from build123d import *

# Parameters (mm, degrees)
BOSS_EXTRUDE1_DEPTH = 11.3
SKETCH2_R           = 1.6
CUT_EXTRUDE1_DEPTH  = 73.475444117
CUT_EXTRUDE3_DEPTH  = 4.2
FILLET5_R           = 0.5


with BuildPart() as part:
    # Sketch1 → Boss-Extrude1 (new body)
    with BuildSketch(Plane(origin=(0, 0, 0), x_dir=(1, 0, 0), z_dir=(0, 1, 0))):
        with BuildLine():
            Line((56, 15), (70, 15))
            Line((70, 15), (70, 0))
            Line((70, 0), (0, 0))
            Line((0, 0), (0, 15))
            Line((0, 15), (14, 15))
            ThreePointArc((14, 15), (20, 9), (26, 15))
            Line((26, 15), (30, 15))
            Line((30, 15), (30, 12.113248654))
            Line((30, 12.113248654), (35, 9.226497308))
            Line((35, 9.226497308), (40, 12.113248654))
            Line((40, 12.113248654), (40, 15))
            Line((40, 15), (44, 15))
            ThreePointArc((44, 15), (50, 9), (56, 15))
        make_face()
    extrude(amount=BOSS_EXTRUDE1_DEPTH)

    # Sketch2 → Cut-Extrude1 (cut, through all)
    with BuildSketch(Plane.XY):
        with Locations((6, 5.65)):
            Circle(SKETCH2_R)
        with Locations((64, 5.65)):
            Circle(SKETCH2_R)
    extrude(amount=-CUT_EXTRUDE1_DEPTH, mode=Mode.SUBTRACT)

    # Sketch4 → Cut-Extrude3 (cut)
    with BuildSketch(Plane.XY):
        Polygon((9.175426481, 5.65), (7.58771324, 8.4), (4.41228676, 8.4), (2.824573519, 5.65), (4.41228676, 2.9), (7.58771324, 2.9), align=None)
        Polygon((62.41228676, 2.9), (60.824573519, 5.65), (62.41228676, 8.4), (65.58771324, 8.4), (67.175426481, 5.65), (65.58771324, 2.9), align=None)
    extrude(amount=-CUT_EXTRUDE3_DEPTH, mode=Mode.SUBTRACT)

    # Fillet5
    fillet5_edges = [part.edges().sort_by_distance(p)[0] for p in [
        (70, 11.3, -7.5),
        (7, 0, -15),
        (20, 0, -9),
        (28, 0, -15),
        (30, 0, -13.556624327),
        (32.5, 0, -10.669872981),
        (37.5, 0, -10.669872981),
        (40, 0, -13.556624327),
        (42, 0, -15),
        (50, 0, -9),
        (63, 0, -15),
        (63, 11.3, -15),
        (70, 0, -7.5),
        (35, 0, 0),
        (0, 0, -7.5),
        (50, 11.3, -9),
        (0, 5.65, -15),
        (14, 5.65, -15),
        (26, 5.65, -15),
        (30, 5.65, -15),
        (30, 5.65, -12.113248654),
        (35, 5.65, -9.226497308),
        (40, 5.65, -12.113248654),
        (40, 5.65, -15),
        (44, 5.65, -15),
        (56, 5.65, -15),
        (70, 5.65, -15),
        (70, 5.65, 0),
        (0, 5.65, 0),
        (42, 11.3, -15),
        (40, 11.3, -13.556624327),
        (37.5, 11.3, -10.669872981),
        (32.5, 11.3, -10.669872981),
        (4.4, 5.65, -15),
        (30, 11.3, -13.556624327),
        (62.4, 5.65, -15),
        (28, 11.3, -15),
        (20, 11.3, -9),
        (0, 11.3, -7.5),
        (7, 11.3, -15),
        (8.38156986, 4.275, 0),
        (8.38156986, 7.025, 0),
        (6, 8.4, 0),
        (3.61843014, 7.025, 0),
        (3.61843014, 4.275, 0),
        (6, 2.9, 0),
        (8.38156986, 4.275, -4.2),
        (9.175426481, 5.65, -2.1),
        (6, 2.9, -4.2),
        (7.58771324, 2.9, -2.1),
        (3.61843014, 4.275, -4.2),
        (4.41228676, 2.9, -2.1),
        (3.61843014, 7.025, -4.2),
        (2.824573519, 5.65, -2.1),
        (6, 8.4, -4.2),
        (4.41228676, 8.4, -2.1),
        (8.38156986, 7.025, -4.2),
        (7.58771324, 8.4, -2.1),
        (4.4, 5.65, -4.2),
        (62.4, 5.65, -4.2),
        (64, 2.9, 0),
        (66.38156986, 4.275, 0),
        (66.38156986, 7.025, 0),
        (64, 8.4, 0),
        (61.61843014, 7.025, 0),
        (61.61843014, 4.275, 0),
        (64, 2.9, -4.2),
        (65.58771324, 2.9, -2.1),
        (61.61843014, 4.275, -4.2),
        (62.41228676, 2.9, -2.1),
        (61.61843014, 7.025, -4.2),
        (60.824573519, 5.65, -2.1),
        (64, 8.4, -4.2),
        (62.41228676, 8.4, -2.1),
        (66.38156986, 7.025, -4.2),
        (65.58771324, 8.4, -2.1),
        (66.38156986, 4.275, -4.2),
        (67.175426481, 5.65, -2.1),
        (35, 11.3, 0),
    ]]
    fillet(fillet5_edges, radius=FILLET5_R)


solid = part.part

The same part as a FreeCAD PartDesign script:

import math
import FreeCAD as App
import Part
import Sketcher
from FreeCAD import Vector
Q = App.Units.Quantity

doc = App.newDocument("Part")
body = doc.addObject("PartDesign::Body", "Body")

sketch1 = body.newObject("Sketcher::SketchObject", "Sketch")
sketch1.AttachmentSupport = (doc.getObject("XZ_Plane"), [""])
sketch1.MapMode = "FlatFace"
sketch1.addGeometry(Part.LineSegment(Vector(70, -15, 0), Vector(56, -15, 0)), False)
sketch1.addGeometry(Part.ArcOfCircle(Part.Circle(Vector(50, -15, 0), Vector(0, 0, 1), 6), math.radians(0), math.radians(180)), False)
sketch1.addGeometry(Part.LineSegment(Vector(44, -15, 0), Vector(40, -15, 0)), False)
sketch1.addGeometry(Part.LineSegment(Vector(40, -15, 0), Vector(40, -12.1, 0)), False)
sketch1.addGeometry(Part.LineSegment(Vector(40, -12.1, 0), Vector(35, -9.2, 0)), False)
sketch1.addGeometry(Part.LineSegment(Vector(35, -9.2, 0), Vector(30, -12.1, 0)), False)
sketch1.addGeometry(Part.LineSegment(Vector(30, -12.1, 0), Vector(30, -15, 0)), False)
sketch1.addGeometry(Part.LineSegment(Vector(30, -15, 0), Vector(26, -15, 0)), False)
sketch1.addGeometry(Part.ArcOfCircle(Part.Circle(Vector(20, -15, 0), Vector(0, 0, 1), 6), math.radians(0), math.radians(180)), False)
sketch1.addGeometry(Part.LineSegment(Vector(14, -15, 0), Vector(0, -15, 0)), False)
sketch1.addGeometry(Part.LineSegment(Vector(0, -15, 0), Vector(0, 0, 0)), False)
sketch1.addGeometry(Part.LineSegment(Vector(0, 0, 0), Vector(70, 0, 0)), False)
sketch1.addGeometry(Part.LineSegment(Vector(70, 0, 0), Vector(70, -15, 0)), False)
sketch1.addConstraint(Sketcher.Constraint("Coincident", 0, 2, 1, 1))
sketch1.addConstraint(Sketcher.Constraint("Coincident", 1, 2, 2, 1))
sketch1.addConstraint(Sketcher.Constraint("Coincident", 2, 2, 3, 1))
sketch1.addConstraint(Sketcher.Constraint("Coincident", 3, 2, 4, 1))
sketch1.addConstraint(Sketcher.Constraint("Coincident", 4, 2, 5, 1))
sketch1.addConstraint(Sketcher.Constraint("Coincident", 5, 2, 6, 1))
sketch1.addConstraint(Sketcher.Constraint("Coincident", 6, 2, 7, 1))
sketch1.addConstraint(Sketcher.Constraint("Coincident", 7, 2, 8, 1))
sketch1.addConstraint(Sketcher.Constraint("Coincident", 8, 2, 9, 1))
sketch1.addConstraint(Sketcher.Constraint("Coincident", 9, 2, 10, 1))
sketch1.addConstraint(Sketcher.Constraint("Coincident", 10, 2, 11, 1))
sketch1.addConstraint(Sketcher.Constraint("Coincident", 11, 2, 12, 1))
sketch1.addConstraint(Sketcher.Constraint("Coincident", 12, 2, 0, 1))
sketch1.addConstraint(Sketcher.Constraint("Horizontal", 0))
sketch1.addConstraint(Sketcher.Constraint("Horizontal", 2))
sketch1.addConstraint(Sketcher.Constraint("Vertical", 3))
sketch1.addConstraint(Sketcher.Constraint("Vertical", 6))
sketch1.addConstraint(Sketcher.Constraint("Horizontal", 7))
sketch1.addConstraint(Sketcher.Constraint("Horizontal", 9))
sketch1.addConstraint(Sketcher.Constraint("Vertical", 10))
sketch1.addConstraint(Sketcher.Constraint("Horizontal", 11))
sketch1.addConstraint(Sketcher.Constraint("Vertical", 12))
sketch1.addConstraint(Sketcher.Constraint("Coincident", 10, 2, -1, 1))
sketch1.addConstraint(Sketcher.Constraint("Equal", 1, 8))
sketch1.addConstraint(Sketcher.Constraint("Horizontal", 1, 3, 8, 3))
sketch1.addConstraint(Sketcher.Constraint("Horizontal", 8, 3, 0, 2))
sketch1.addConstraint(Sketcher.Constraint("Horizontal", 0, 2, 1, 2))
sketch1.addConstraint(Sketcher.Constraint("Horizontal", 3, 2, 5, 2))
sketch1.addConstraint(Sketcher.Constraint("Horizontal", 2, 2, 6, 2))
sketch1.addConstraint(Sketcher.Constraint("Horizontal", 7, 2, 8, 2))
sketch1.addConstraint(Sketcher.Constraint("Equal", 2, 7))
sketch1.addConstraint(Sketcher.Constraint("Equal", 0, 9))
sketch1.addConstraint(Sketcher.Constraint("Equal", 4, 5))
sketch1.addConstraint(Sketcher.Constraint("Radius", 1, 6.0))
sketch1.addConstraint(Sketcher.Constraint("DistanceX", 0, 2, 0, 1, 14.0))
sketch1.addConstraint(Sketcher.Constraint("DistanceX", 2, 2, 2, 1, 4.0))
sketch1.addConstraint(Sketcher.Constraint("DistanceX", 11, 1, 11, 2, 70.0))
sketch1.addConstraint(Sketcher.Constraint("DistanceY", 10, 1, 10, 2, 15.0))
sketch1.addConstraint(Sketcher.Constraint("Angle", 4, Q("150 deg")))
sketch1.addConstraint(Sketcher.Constraint("DistanceY", 3, 1, 3, 2, 2.886751))
pad1 = body.newObject("PartDesign::Pad", "Pad")
pad1.Profile = sketch1
pad1.Length = 11.3
pad1.Reversed = True

sketch2 = body.newObject("Sketcher::SketchObject", "Sketch001")
sketch2.AttachmentSupport = (doc.getObject("XY_Plane"), [""])
sketch2.MapMode = "FlatFace"
sketch2.addGeometry(Part.Circle(Vector(6, 5.7, 0), Vector(0, 0, 1), 1.6), False)
sketch2.addGeometry(Part.Circle(Vector(64, 5.7, 0), Vector(0, 0, 1), 1.6), False)
sketch2.addConstraint(Sketcher.Constraint("Equal", 0, 1))
sketch2.addConstraint(Sketcher.Constraint("Horizontal", 0, 3, 1, 3))
sketch2.addConstraint(Sketcher.Constraint("Diameter", 0, 3.2))
sketch2.addConstraint(Sketcher.Constraint("DistanceX", -1, 1, 0, 3, 6.0))
sketch2.addConstraint(Sketcher.Constraint("DistanceX", -1, 1, 1, 3, 64.0))
sketch2.addConstraint(Sketcher.Constraint("DistanceY", -1, 1, 0, 3, 5.65))
pocket1 = body.newObject("PartDesign::Pocket", "Pocket")
pocket1.Profile = sketch2
pocket1.Type = "ThroughAll"

sketch3 = body.newObject("Sketcher::SketchObject", "Sketch002")
sketch3.AttachmentSupport = (doc.getObject("XY_Plane"), [""])
sketch3.MapMode = "FlatFace"
sketch3.addGeometry(Part.LineSegment(Vector(9.2, 5.7, 0), Vector(7.6, 8.4, 0)), False)
sketch3.addGeometry(Part.LineSegment(Vector(7.6, 8.4, 0), Vector(4.4, 8.4, 0)), False)
sketch3.addGeometry(Part.LineSegment(Vector(4.4, 8.4, 0), Vector(2.8, 5.7, 0)), False)
sketch3.addGeometry(Part.LineSegment(Vector(2.8, 5.7, 0), Vector(4.4, 2.9, 0)), False)
sketch3.addGeometry(Part.LineSegment(Vector(4.4, 2.9, 0), Vector(7.6, 2.9, 0)), False)
sketch3.addGeometry(Part.LineSegment(Vector(7.6, 2.9, 0), Vector(9.2, 5.7, 0)), False)
sketch3.addGeometry(Part.LineSegment(Vector(60.8, 5.7, 0), Vector(62.4, 2.9, 0)), False)
sketch3.addGeometry(Part.LineSegment(Vector(62.4, 2.9, 0), Vector(65.6, 2.9, 0)), False)
sketch3.addGeometry(Part.LineSegment(Vector(65.6, 2.9, 0), Vector(67.2, 5.7, 0)), False)
sketch3.addGeometry(Part.LineSegment(Vector(67.2, 5.7, 0), Vector(65.6, 8.4, 0)), False)
sketch3.addGeometry(Part.LineSegment(Vector(65.6, 8.4, 0), Vector(62.4, 8.4, 0)), False)
sketch3.addGeometry(Part.LineSegment(Vector(62.4, 8.4, 0), Vector(60.8, 5.7, 0)), False)
sketch3.addConstraint(Sketcher.Constraint("Coincident", 0, 2, 1, 1))
sketch3.addConstraint(Sketcher.Constraint("Coincident", 1, 2, 2, 1))
sketch3.addConstraint(Sketcher.Constraint("Coincident", 2, 2, 3, 1))
sketch3.addConstraint(Sketcher.Constraint("Coincident", 3, 2, 4, 1))
sketch3.addConstraint(Sketcher.Constraint("Coincident", 4, 2, 5, 1))
sketch3.addConstraint(Sketcher.Constraint("Coincident", 5, 2, 0, 1))
sketch3.addConstraint(Sketcher.Constraint("Coincident", 6, 2, 7, 1))
sketch3.addConstraint(Sketcher.Constraint("Coincident", 7, 2, 8, 1))
sketch3.addConstraint(Sketcher.Constraint("Coincident", 8, 2, 9, 1))
sketch3.addConstraint(Sketcher.Constraint("Coincident", 9, 2, 10, 1))
sketch3.addConstraint(Sketcher.Constraint("Coincident", 10, 2, 11, 1))
sketch3.addConstraint(Sketcher.Constraint("Coincident", 11, 2, 6, 1))
sketch3.addConstraint(Sketcher.Constraint("Horizontal", 1))
sketch3.addConstraint(Sketcher.Constraint("Horizontal", 4))
sketch3.addConstraint(Sketcher.Constraint("Horizontal", 7))
sketch3.addConstraint(Sketcher.Constraint("Horizontal", 10))
sketch3.addConstraint(Sketcher.Constraint("Parallel", 0, 3))
sketch3.addConstraint(Sketcher.Constraint("Parallel", 2, 5))
sketch3.addConstraint(Sketcher.Constraint("Parallel", 3, 6))
sketch3.addConstraint(Sketcher.Constraint("Parallel", 5, 8))
sketch3.addConstraint(Sketcher.Constraint("Parallel", 6, 9))
sketch3.addConstraint(Sketcher.Constraint("Parallel", 8, 11))
sketch3.addConstraint(Sketcher.Constraint("Horizontal", 2, 2, 5, 2))
sketch3.addConstraint(Sketcher.Constraint("Horizontal", 4, 2, 6, 2))
sketch3.addConstraint(Sketcher.Constraint("Horizontal", 5, 2, 8, 2))
sketch3.addConstraint(Sketcher.Constraint("Horizontal", 1, 2, 9, 2))
sketch3.addConstraint(Sketcher.Constraint("Horizontal", 8, 2, 11, 2))
sketch3.addConstraint(Sketcher.Constraint("Vertical", 1, 2, 3, 2))
sketch3.addConstraint(Sketcher.Constraint("Vertical", 0, 2, 4, 2))
sketch3.addConstraint(Sketcher.Constraint("Equal", 4, 7))
sketch3.addConstraint(Sketcher.Constraint("Angle", 0, Q("120 deg")))
sketch3.addConstraint(Sketcher.Constraint("DistanceX", 3, 2, 6, 2, 58.0))
sketch3.addConstraint(Sketcher.Constraint("DistanceY", -1, 1, 0, 2, 8.4))
sketch3.addConstraint(Sketcher.Constraint("DistanceY", -1, 1, 3, 2, 2.9))
sketch3.addConstraint(Sketcher.Constraint("DistanceX", 1, 2, 1, 1, 3.175426))
sketch3.addConstraint(Sketcher.Constraint("DistanceX", -1, 1, 0, 2, 7.587713))
pocket2 = body.newObject("PartDesign::Pocket", "Pocket001")
pocket2.Profile = sketch3
pocket2.Length = 4.2
doc.recompute()

fillet = body.newObject("PartDesign::Fillet", "Fillet")
fillet.Base = (pocket2, ["Edge1"])
fillet.UseAllEdges = True
fillet.Radius = 0.5

doc.recompute()
